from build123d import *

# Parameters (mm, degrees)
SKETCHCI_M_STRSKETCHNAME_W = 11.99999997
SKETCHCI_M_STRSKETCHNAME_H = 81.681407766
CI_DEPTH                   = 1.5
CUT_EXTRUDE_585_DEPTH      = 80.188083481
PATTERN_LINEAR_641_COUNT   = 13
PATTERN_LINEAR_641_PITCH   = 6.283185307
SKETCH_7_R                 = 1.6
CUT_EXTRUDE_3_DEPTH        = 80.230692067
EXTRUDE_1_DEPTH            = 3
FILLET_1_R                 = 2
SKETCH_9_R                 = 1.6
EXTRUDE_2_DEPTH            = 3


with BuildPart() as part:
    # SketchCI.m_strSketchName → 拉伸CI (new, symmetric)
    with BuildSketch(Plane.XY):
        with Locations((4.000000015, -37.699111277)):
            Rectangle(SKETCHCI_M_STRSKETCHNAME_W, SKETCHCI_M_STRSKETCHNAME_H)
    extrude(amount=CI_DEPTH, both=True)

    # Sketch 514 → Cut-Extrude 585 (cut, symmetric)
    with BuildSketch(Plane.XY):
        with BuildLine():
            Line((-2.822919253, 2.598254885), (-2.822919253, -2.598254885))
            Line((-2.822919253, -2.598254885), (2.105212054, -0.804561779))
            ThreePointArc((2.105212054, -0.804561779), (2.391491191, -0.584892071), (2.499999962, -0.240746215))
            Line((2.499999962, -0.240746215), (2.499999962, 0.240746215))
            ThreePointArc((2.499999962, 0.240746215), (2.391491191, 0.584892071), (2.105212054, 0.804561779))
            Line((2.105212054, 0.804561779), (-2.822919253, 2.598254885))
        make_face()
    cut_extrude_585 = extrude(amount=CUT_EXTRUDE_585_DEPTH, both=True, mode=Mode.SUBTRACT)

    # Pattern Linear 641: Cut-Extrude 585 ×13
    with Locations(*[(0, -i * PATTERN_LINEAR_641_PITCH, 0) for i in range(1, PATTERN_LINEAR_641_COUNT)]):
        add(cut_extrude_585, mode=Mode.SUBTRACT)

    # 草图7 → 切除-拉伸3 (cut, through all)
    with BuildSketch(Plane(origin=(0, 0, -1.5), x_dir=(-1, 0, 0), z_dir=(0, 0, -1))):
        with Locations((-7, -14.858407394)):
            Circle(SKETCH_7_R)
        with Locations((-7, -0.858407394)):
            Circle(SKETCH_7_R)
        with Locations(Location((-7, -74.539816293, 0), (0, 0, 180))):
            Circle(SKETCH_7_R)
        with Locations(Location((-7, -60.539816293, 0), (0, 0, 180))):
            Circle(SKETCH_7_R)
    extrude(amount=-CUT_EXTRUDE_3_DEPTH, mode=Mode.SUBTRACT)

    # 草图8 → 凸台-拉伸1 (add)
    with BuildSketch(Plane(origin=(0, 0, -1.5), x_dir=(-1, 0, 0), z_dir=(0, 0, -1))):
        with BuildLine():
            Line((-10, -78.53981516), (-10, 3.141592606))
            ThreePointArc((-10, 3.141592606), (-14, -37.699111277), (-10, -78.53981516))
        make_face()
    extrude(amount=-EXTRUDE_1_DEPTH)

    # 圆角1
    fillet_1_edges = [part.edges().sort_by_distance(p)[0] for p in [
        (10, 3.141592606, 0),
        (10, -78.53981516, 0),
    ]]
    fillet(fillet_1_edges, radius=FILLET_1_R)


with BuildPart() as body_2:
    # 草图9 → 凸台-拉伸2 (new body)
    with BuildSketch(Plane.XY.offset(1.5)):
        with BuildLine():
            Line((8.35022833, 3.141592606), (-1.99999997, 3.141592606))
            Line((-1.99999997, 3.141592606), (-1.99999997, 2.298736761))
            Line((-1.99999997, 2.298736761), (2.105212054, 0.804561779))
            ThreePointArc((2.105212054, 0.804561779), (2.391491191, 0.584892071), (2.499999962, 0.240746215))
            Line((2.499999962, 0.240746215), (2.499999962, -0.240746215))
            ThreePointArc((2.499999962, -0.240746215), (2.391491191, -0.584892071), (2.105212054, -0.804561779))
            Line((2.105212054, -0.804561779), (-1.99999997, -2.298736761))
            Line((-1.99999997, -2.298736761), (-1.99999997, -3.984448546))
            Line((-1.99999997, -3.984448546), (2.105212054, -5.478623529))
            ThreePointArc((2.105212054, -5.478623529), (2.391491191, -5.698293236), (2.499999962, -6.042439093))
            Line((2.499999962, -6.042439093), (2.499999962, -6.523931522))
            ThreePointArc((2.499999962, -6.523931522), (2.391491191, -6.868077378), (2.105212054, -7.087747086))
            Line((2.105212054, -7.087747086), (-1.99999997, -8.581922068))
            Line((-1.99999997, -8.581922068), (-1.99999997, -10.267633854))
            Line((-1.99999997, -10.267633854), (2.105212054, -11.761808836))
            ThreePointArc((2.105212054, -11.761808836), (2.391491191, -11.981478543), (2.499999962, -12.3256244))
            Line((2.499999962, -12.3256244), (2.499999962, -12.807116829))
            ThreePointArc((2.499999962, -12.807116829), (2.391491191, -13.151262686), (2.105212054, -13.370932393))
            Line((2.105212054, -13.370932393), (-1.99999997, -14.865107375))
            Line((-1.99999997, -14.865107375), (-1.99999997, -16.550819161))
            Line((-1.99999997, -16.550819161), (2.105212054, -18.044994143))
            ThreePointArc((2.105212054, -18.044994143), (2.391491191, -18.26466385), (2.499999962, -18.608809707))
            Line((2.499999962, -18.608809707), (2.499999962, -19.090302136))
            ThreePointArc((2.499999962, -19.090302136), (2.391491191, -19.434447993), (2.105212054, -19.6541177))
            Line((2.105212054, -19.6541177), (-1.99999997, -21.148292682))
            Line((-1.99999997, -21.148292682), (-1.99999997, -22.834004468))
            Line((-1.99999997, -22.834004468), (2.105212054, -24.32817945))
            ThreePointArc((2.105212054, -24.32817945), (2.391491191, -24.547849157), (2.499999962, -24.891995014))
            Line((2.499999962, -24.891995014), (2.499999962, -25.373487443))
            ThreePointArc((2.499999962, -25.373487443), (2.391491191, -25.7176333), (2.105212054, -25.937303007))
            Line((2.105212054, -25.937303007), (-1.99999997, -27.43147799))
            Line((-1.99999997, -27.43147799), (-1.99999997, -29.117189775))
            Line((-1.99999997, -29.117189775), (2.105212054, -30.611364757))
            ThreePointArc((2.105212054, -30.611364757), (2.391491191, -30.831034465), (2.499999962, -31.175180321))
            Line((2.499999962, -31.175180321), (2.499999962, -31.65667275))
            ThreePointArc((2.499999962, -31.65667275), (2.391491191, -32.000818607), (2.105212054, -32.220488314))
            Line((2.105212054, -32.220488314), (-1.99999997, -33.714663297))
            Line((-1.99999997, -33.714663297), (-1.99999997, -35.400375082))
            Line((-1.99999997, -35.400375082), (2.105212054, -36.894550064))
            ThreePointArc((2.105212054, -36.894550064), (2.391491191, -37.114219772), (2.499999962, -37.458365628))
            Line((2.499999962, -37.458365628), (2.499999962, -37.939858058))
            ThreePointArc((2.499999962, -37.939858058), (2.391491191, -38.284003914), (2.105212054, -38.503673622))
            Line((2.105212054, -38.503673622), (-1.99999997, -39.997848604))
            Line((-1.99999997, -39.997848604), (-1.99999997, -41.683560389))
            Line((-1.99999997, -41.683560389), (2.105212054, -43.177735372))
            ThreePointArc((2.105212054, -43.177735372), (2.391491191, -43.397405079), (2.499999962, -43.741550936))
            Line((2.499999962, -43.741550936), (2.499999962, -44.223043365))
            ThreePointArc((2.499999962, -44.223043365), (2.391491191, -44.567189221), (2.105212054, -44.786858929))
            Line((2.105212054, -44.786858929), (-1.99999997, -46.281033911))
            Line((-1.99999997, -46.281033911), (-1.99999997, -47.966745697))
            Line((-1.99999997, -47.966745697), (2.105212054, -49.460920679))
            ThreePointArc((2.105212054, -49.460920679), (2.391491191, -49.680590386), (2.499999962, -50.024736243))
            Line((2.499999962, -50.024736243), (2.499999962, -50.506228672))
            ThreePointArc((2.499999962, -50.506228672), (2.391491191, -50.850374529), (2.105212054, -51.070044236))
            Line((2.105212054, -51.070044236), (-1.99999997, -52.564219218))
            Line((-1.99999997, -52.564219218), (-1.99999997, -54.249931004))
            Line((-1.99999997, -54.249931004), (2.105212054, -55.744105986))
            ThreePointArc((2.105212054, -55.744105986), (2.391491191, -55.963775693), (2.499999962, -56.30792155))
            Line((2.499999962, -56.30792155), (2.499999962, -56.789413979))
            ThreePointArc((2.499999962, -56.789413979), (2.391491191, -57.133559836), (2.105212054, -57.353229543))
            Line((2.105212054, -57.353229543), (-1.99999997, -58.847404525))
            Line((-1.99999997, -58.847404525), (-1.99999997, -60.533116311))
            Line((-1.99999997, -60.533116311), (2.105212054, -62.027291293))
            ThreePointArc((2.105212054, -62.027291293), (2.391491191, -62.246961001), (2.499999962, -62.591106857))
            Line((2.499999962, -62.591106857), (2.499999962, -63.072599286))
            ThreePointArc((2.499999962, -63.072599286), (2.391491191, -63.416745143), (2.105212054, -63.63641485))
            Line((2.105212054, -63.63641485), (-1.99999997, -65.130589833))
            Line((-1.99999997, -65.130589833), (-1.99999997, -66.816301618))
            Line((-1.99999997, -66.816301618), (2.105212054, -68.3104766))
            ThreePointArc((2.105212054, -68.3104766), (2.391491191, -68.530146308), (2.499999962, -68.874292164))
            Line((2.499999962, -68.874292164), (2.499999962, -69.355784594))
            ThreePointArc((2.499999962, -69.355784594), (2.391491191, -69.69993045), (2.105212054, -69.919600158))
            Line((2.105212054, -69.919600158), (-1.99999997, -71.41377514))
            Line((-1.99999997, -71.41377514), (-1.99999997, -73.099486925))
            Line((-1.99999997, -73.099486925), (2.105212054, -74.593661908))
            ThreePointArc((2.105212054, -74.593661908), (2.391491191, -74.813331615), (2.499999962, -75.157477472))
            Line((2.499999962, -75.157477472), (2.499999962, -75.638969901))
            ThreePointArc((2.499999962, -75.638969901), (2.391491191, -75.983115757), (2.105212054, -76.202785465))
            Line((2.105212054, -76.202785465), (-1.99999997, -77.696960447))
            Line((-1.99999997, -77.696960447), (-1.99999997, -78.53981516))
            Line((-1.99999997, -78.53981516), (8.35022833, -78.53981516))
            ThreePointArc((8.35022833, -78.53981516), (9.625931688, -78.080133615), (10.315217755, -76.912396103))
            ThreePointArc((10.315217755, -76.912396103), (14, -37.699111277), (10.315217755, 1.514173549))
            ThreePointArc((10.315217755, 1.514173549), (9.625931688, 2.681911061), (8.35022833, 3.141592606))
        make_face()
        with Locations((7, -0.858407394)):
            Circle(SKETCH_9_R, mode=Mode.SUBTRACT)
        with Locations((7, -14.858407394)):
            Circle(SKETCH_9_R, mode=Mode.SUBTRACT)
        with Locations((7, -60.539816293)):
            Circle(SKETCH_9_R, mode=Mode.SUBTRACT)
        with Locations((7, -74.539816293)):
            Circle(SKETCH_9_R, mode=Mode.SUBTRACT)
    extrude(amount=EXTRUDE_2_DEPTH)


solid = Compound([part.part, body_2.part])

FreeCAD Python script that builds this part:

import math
import FreeCAD as App
import Part
import Sketcher

V = App.Vector
Q = App.Units.Quantity


def edges_at(feature, points):
    """Names of the edges that pass closest to the given points."""
    edges = feature.Shape.Edges
    near = lambda p: min(range(len(edges)), key=lambda i: edges[i].distToShape(Part.Vertex(*p))[0])
    return sorted({f"Edge{near(p) + 1}" for p in points})

doc = App.newDocument("Part")
params = doc.addObject("Spreadsheet::Sheet", "Params")
for row, (alias, value) in enumerate([
    ("sketch1_width", "12 mm"),
    ("pad1_length", "3 mm"),
    ("sketch2_radius", "0.6 mm"),
    ("pocket1_length", "160.376167 mm"),
    ("linearpattern_pitch", "6.283185 mm"),
    ("sketch3_diameter", "3.2 mm"),
    ("pad2_length", "3 mm"),
    ("fillet_radius", "2 mm"),
    ("sketch5_radius", "2 mm"),
    ("sketch5_diameter", "3.2 mm"),
    ("sketch5_radius2", "0.6 mm"),
    ("pad3_length", "3 mm"),
], start=1):
    params.set(f"A{row}", alias)
    params.set(f"B{row}", "=" + value)
    params.setAlias(f"B{row}", alias)

body = doc.addObject("PartDesign::Body", "Body")

# Sketch on XY plane
sketch1 = doc.addObject("Sketcher::SketchObject", "Sketch")
body.addObject(sketch1)
sketch1.AttachmentSupport = (doc.XY_Plane, [""])
sketch1.MapMode = "FlatFace"
sketch1.addGeometry([
    Part.LineSegment(V(-2, 3, 0), V(-2, -79, 0)),
    Part.LineSegment(V(-2, -79, 0), V(10, -79, 0)),
    Part.LineSegment(V(10, -79, 0), V(10, 3, 0)),
    Part.LineSegment(V(10, 3, 0), V(-2, 3, 0)),
], False)
sketch1.addConstraint([
    Sketcher.Constraint("Coincident", 0, 2, 1, 1),
    Sketcher.Constraint("Coincident", 1, 2, 2, 1),
    Sketcher.Constraint("Coincident", 2, 2, 3, 1),
    Sketcher.Constraint("Coincident", 3, 2, 0, 1),
    Sketcher.Constraint("Vertical", 0),
    Sketcher.Constraint("Horizontal", 1),
    Sketcher.Constraint("Vertical", 2),
    Sketcher.Constraint("Horizontal", 3),
    Sketcher.Constraint("DistanceX", 1, 1, 1, 2, Q("12 mm")),
    Sketcher.Constraint("DistanceX", 0, 2, -1, 1, Q("2 mm")),
    Sketcher.Constraint("DistanceY", 0, 2, 0, 1, Q("81.681408 mm")),
    Sketcher.Constraint("DistanceY", 0, 2, -1, 1, Q("78.539815 mm")),
])
sketch1.setExpression("Constraints[8]", "Params.sketch1_width")
pad1 = doc.addObject("PartDesign::Pad", "Pad")
body.addObject(pad1)
pad1.Profile = sketch1
pad1.setExpression("Length", "Params.pad1_length")
pad1.Midplane = True

# Sketch on XY plane
sketch2 = doc.addObject("Sketcher::SketchObject", "Sketch001")
body.addObject(sketch2)
sketch2.AttachmentSupport = (doc.XY_Plane, [""])
sketch2.MapMode = "FlatFace"
sketch2.addGeometry([
    Part.LineSegment(V(-2.82, 2.6, 0), V(-2.82, -2.6, 0)),  # 0
    Part.LineSegment(V(-2.82, -2.6, 0), V(2.11, -0.8, 0)),  # 1
    Part.ArcOfCircle(Part.Circle(V(1.9, -0.24, 0), V(0, 0, 1), 0.6), math.radians(-70), math.radians(0)),  # 2
    Part.LineSegment(V(2.5, -0.24, 0), V(2.5, 0.24, 0)),  # 3
    Part.ArcOfCircle(Part.Circle(V(1.9, 0.24, 0), V(0, 0, 1), 0.6), math.radians(0), math.radians(70)),  # 4
    Part.LineSegment(V(2.11, 0.8, 0), V(-2.82, 2.6, 0)),  # 5
], False)
sketch2.addConstraint([
    Sketcher.Constraint("Coincident", 0, 2, 1, 1),
    Sketcher.Constraint("Tangent", 1, 2, 2, 1),
    Sketcher.Constraint("Tangent", 2, 2, 3, 1),
    Sketcher.Constraint("Tangent", 3, 2, 4, 1),
    Sketcher.Constraint("Tangent", 4, 2, 5, 1),
    Sketcher.Constraint("Coincident", 5, 2, 0, 1),
    Sketcher.Constraint("Vertical", 0),
    Sketcher.Constraint("Vertical", 3),
    Sketcher.Constraint("Equal", 2, 4),
    Sketcher.Constraint("Symmetric", 1, 2, 4, 2, -1),
    Sketcher.Constraint("Radius", 2, Q("0.6 mm")),
    Sketcher.Constraint("Angle", 1, Q("20 deg")),
    Sketcher.Constraint("DistanceX", -1, 1, 2, 3, Q("1.9 mm")),
    Sketcher.Constraint("DistanceY", 0, 2, 4, 3, Q("2.839001 mm")),
    Sketcher.Constraint("DistanceY", 0, 2, 0, 1, Q("5.19651 mm")),
])
sketch2.setExpression("Constraints[10]", "Params.sketch2_radius")
pocket1 = doc.addObject("PartDesign::Pocket", "Pocket")
body.addObject(pocket1)
pocket1.Profile = sketch2
pocket1.setExpression("Length", "Params.pocket1_length")
pocket1.Midplane = True
doc.recompute()

linearpattern = doc.addObject("PartDesign::LinearPattern", "LinearPattern")
body.addObject(linearpattern)
linearpattern.Originals = [pocket1]
linearpattern.Direction = (doc.Y_Axis, [""])
linearpattern.Mode = "offset"
linearpattern.setExpression("Offset", "Params.linearpattern_pitch")
linearpattern.Occurrences = 13
linearpattern.Reversed = True
body.Tip = linearpattern

# Sketch on XY plane
sketch3 = doc.addObject("Sketcher::SketchObject", "Sketch002")
body.addObject(sketch3)
sketch3.AttachmentSupport = (doc.XY_Plane, [""])
sketch3.MapMode = "FlatFace"
sketch3.AttachmentOffset = App.Placement(V(0, 0, -1.5), App.Rotation())
sketch3.addGeometry([
    Part.Circle(V(7, -14.9, 0), V(0, 0, 1), 1.6),
    Part.Circle(V(7, -0.9, 0), V(0, 0, 1), 1.6),
    Part.Circle(V(7, -74.5, 0), V(0, 0, 1), 1.6),
    Part.Circle(V(7, -60.5, 0), V(0, 0, 1), 1.6),
], False)
sketch3.addConstraint([
    Sketcher.Constraint("Equal", 0, 1),
    Sketcher.Constraint("Equal", 1, 2),
    Sketcher.Constraint("Equal", 2, 3),
    Sketcher.Constraint("Vertical", 0, 3, 1, 3),
    Sketcher.Constraint("Vertical", 1, 3, 2, 3),
    Sketcher.Constraint("Vertical", 2, 3, 3, 3),
    Sketcher.Constraint("Diameter", 0, Q("3.2 mm")),
    Sketcher.Constraint("DistanceX", -1, 1, 0, 3, Q("7 mm")),
    Sketcher.Constraint("DistanceY", 0, 3, 1, 3, Q("14 mm")),
    Sketcher.Constraint("DistanceY", 2, 3, 3, 3, Q("14 mm")),
    Sketcher.Constraint("DistanceY", 2, 3, 0, 3, Q("59.681409 mm")),
    Sketcher.Constraint("DistanceY", 0, 3, -1, 1, Q("14.858407 mm")),
])
sketch3.setExpression("Constraints[6]", "Params.sketch3_diameter")
pocket2 = doc.addObject("PartDesign::Pocket", "Pocket001")
body.addObject(pocket2)
pocket2.Profile = sketch3
pocket2.Type = "ThroughAll"
pocket2.Reversed = True

# Sketch on XY plane
sketch4 = doc.addObject("Sketcher::SketchObject", "Sketch003")
body.addObject(sketch4)
sketch4.AttachmentSupport = (doc.XY_Plane, [""])
sketch4.MapMode = "FlatFace"
sketch4.AttachmentOffset = App.Placement(V(0, 0, -1.5), App.Rotation())
sketch4.addGeometry([
    Part.LineSegment(V(10, -79, 0), V(10, 3, 0)),
    Part.ArcOfCircle(Part.Circle(V(-196, -38, 0), V(0, 0, 1), 210), math.radians(-11), math.radians(11)),
], False)
sketch4.addConstraint([
    Sketcher.Constraint("Coincident", 0, 1, 1, 1),
    Sketcher.Constraint("Coincident", 1, 2, 0, 2),
    Sketcher.Constraint("Vertical", 0),
    Sketcher.Constraint("DistanceX", -1, 1, 0, 1, Q("10 mm")),
    Sketcher.Constraint("Radius", 1, Q("210.495387 mm")),
    Sketcher.Constraint("DistanceY", 0, 1, 0, 2, Q("81.681408 mm")),
    Sketcher.Constraint("DistanceY", 1, 3, -1, 1, Q("37.699111 mm")),
])
pad2 = doc.addObject("PartDesign::Pad", "Pad001")
body.addObject(pad2)
pad2.Profile = sketch4
pad2.setExpression("Length", "Params.pad2_length")
doc.recompute()

fillet = doc.addObject("PartDesign::Fillet", "Fillet")
body.addObject(fillet)
fillet.Base = (pad2, edges_at(pad2, [(10, 3.142, 0), (10, -78.54, 0)]))
fillet.setExpression("Radius", "Params.fillet_radius")
body2 = doc.addObject("PartDesign::Body", "Body001")

# Sketch on XY plane
sketch5 = doc.addObject("Sketcher::SketchObject", "Sketch004")
body2.addObject(sketch5)
sketch5.AttachmentSupport = (doc.getObject("XY_Plane001"), [""])
sketch5.MapMode = "FlatFace"
sketch5.AttachmentOffset = App.Placement(V(0, 0, 1.5), App.Rotation())
sketch5.addGeometry([
    Part.LineSegment(V(8.35, 3.14, 0), V(-2, 3.14, 0)),  # 0
    Part.LineSegment(V(-2, 3.14, 0), V(-2, 2.3, 0)),  # 1
    Part.LineSegment(V(-2, 2.3, 0), V(2.11, 0.8, 0)),  # 2
    Part.ArcOfCircle(Part.Circle(V(1.9, 0.24, 0), V(0, 0, 1), 0.6), math.radians(0), math.radians(70)),  # 3
    Part.LineSegment(V(2.5, 0.24, 0), V(2.5, -0.24, 0)),  # 4
    Part.ArcOfCircle(Part.Circle(V(1.9, -0.24, 0), V(0, 0, 1), 0.6), math.radians(-70), math.radians(0)),  # 5
    Part.LineSegment(V(2.11, -0.8, 0), V(-2, -2.3, 0)),  # 6
    Part.LineSegment(V(-2, -2.3, 0), V(-2, -3.98, 0)),  # 7
    Part.LineSegment(V(-2, -3.98, 0), V(2.11, -5.48, 0)),  # 8
    Part.ArcOfCircle(Part.Circle(V(1.9, -6.04, 0), V(0, 0, 1), 0.6), math.radians(0), math.radians(70)),  # 9
    Part.LineSegment(V(2.5, -6.04, 0), V(2.5, -6.52, 0)),  # 10
    Part.ArcOfCircle(Part.Circle(V(1.9, -6.52, 0), V(0, 0, 1), 0.6), math.radians(-70), math.radians(0)),  # 11
    Part.LineSegment(V(2.11, -7.09, 0), V(-2, -8.58, 0)),  # 12
    Part.LineSegment(V(-2, -8.58, 0), V(-2, -10.27, 0)),  # 13
    Part.LineSegment(V(-2, -10.27, 0), V(2.11, -11.76, 0)),  # 14
    Part.ArcOfCircle(Part.Circle(V(1.9, -12.33, 0), V(0, 0, 1), 0.6), math.radians(0), math.radians(70)),  # 15
    Part.LineSegment(V(2.5, -12.33, 0), V(2.5, -12.81, 0)),  # 16
    Part.ArcOfCircle(Part.Circle(V(1.9, -12.81, 0), V(0, 0, 1), 0.6), math.radians(-70), math.radians(0)),  # 17
    Part.LineSegment(V(2.11, -13.37, 0), V(-2, -14.87, 0)),  # 18
    Part.LineSegment(V(-2, -14.87, 0), V(-2, -16.55, 0)),  # 19
    Part.LineSegment(V(-2, -16.55, 0), V(2.11, -18.04, 0)),  # 20
    Part.ArcOfCircle(Part.Circle(V(1.9, -18.61, 0), V(0, 0, 1), 0.6), math.radians(0), math.radians(70)),  # 21
    Part.LineSegment(V(2.5, -18.61, 0), V(2.5, -19.09, 0)),  # 22
    Part.ArcOfCircle(Part.Circle(V(1.9, -19.09, 0), V(0, 0, 1), 0.6), math.radians(-70), math.radians(0)),  # 23
    Part.LineSegment(V(2.11, -19.65, 0), V(-2, -21.15, 0)),  # 24
    Part.LineSegment(V(-2, -21.15, 0), V(-2, -22.83, 0)),  # 25
    Part.LineSegment(V(-2, -22.83, 0), V(2.11, -24.33, 0)),  # 26
    Part.ArcOfCircle(Part.Circle(V(1.9, -24.89, 0), V(0, 0, 1), 0.6), math.radians(0), math.radians(70)),  # 27
    Part.LineSegment(V(2.5, -24.89, 0), V(2.5, -25.37, 0)),  # 28
    Part.ArcOfCircle(Part.Circle(V(1.9, -25.37, 0), V(0, 0, 1), 0.6), math.radians(-70), math.radians(0)),  # 29
    Part.LineSegment(V(2.11, -25.94, 0), V(-2, -27.43, 0)),  # 30
    Part.LineSegment(V(-2, -27.43, 0), V(-2, -29.12, 0)),  # 31
    Part.LineSegment(V(-2, -29.12, 0), V(2.11, -30.61, 0)),  # 32
    Part.ArcOfCircle(Part.Circle(V(1.9, -31.18, 0), V(0, 0, 1), 0.6), math.radians(0), math.radians(70)),  # 33
    Part.LineSegment(V(2.5, -31.18, 0), V(2.5, -31.66, 0)),  # 34
    Part.ArcOfCircle(Part.Circle(V(1.9, -31.66, 0), V(0, 0, 1), 0.6), math.radians(-70), math.radians(0)),  # 35
    Part.LineSegment(V(2.11, -32.22, 0), V(-2, -33.71, 0)),  # 36
    Part.LineSegment(V(-2, -33.71, 0), V(-2, -35.4, 0)),  # 37
    Part.LineSegment(V(-2, -35.4, 0), V(2.11, -36.89, 0)),  # 38
    Part.ArcOfCircle(Part.Circle(V(1.9, -37.46, 0), V(0, 0, 1), 0.6), math.radians(0), math.radians(70)),  # 39
    Part.LineSegment(V(2.5, -37.46, 0), V(2.5, -37.94, 0)),  # 40
    Part.ArcOfCircle(Part.Circle(V(1.9, -37.94, 0), V(0, 0, 1), 0.6), math.radians(-70), math.radians(0)),  # 41
    Part.LineSegment(V(2.11, -38.5, 0), V(-2, -40, 0)),  # 42
    Part.LineSegment(V(-2, -40, 0), V(-2, -41.68, 0)),  # 43
    Part.LineSegment(V(-2, -41.68, 0), V(2.11, -43.18, 0)),  # 44
    Part.ArcOfCircle(Part.Circle(V(1.9, -43.74, 0), V(0, 0, 1), 0.6), math.radians(0), math.radians(70)),  # 45
    Part.LineSegment(V(2.5, -43.74, 0), V(2.5, -44.22, 0)),  # 46
    Part.ArcOfCircle(Part.Circle(V(1.9, -44.22, 0), V(0, 0, 1), 0.6), math.radians(-70), math.radians(0)),  # 47
    Part.LineSegment(V(2.11, -44.79, 0), V(-2, -46.28, 0)),  # 48
    Part.LineSegment(V(-2, -46.28, 0), V(-2, -47.97, 0)),  # 49
    Part.LineSegment(V(-2, -47.97, 0), V(2.11, -49.46, 0)),  # 50
    Part.ArcOfCircle(Part.Circle(V(1.9, -50.02, 0), V(0, 0, 1), 0.6), math.radians(0), math.radians(70)),  # 51
    Part.LineSegment(V(2.5, -50.02, 0), V(2.5, -50.51, 0)),  # 52
    Part.ArcOfCircle(Part.Circle(V(1.9, -50.51, 0), V(0, 0, 1), 0.6), math.radians(-70), math.radians(0)),  # 53
    Part.LineSegment(V(2.11, -51.07, 0), V(-2, -52.56, 0)),  # 54
    Part.LineSegment(V(-2, -52.56, 0), V(-2, -54.25, 0)),  # 55
    Part.LineSegment(V(-2, -54.25, 0), V(2.11, -55.74, 0)),  # 56
    Part.ArcOfCircle(Part.Circle(V(1.9, -56.31, 0), V(0, 0, 1), 0.6), math.radians(0), math.radians(70)),  # 57
    Part.LineSegment(V(2.5, -56.31, 0), V(2.5, -56.79, 0)),  # 58
    Part.ArcOfCircle(Part.Circle(V(1.9, -56.79, 0), V(0, 0, 1), 0.6), math.radians(-70), math.radians(0)),  # 59
    Part.LineSegment(V(2.11, -57.35, 0), V(-2, -58.85, 0)),  # 60
    Part.LineSegment(V(-2, -58.85, 0), V(-2, -60.53, 0)),  # 61
    Part.LineSegment(V(-2, -60.53, 0), V(2.11, -62.03, 0)),  # 62
    Part.ArcOfCircle(Part.Circle(V(1.9, -62.59, 0), V(0, 0, 1), 0.6), math.radians(0), math.radians(70)),  # 63
    Part.LineSegment(V(2.5, -62.59, 0), V(2.5, -63.07, 0)),  # 64
    Part.ArcOfCircle(Part.Circle(V(1.9, -63.07, 0), V(0, 0, 1), 0.6), math.radians(-70), math.radians(0)),  # 65
    Part.LineSegment(V(2.11, -63.64, 0), V(-2, -65.13, 0)),  # 66
    Part.LineSegment(V(-2, -65.13, 0), V(-2, -66.82, 0)),  # 67
    Part.LineSegment(V(-2, -66.82, 0), V(2.11, -68.31, 0)),  # 68
    Part.ArcOfCircle(Part.Circle(V(1.9, -68.87, 0), V(0, 0, 1), 0.6), math.radians(0), math.radians(70)),  # 69
    Part.LineSegment(V(2.5, -68.87, 0), V(2.5, -69.36, 0)),  # 70
    Part.ArcOfCircle(Part.Circle(V(1.9, -69.36, 0), V(0, 0, 1), 0.6), math.radians(-70), math.radians(0)),  # 71
    Part.LineSegment(V(2.11, -69.92, 0), V(-2, -71.41, 0)),  # 72
    Part.LineSegment(V(-2, -71.41, 0), V(-2, -73.1, 0)),  # 73
    Part.LineSegment(V(-2, -73.1, 0), V(2.11, -74.59, 0)),  # 74
    Part.ArcOfCircle(Part.Circle(V(1.9, -75.16, 0), V(0, 0, 1), 0.6), math.radians(0), math.radians(70)),  # 75
    Part.LineSegment(V(2.5, -75.16, 0), V(2.5, -75.64, 0)),  # 76
    Part.ArcOfCircle(Part.Circle(V(1.9, -75.64, 0), V(0, 0, 1), 0.6), math.radians(-70), math.radians(0)),  # 77
    Part.LineSegment(V(2.11, -76.2, 0), V(-2, -77.7, 0)),  # 78
    Part.LineSegment(V(-2, -77.7, 0), V(-2, -78.54, 0)),  # 79
    Part.LineSegment(V(-2, -78.54, 0), V(8.35, -78.54, 0)),  # 80
    Part.ArcOfCircle(Part.Circle(V(8.35, -76.54, 0), V(0, 0, 1), 2), math.radians(-90), math.radians(-11)),  # 81
    Part.ArcOfCircle(Part.Circle(V(-196.5, -37.7, 0), V(0, 0, 1), 210.5), math.radians(-11), math.radians(11)),  # 82
    Part.ArcOfCircle(Part.Circle(V(8.35, 1.14, 0), V(0, 0, 1), 2), math.radians(11), math.radians(90)),  # 83
    Part.Circle(V(7, -74.54, 0), V(0, 0, 1), 1.6),  # 84
    Part.Circle(V(7, -60.54, 0), V(0, 0, 1), 1.6),  # 85
    Part.Circle(V(7, -14.86, 0), V(0, 0, 1), 1.6),  # 86
    Part.Circle(V(7, -0.86, 0), V(0, 0, 1), 1.6),  # 87
], False)
sketch5.addConstraint([
    Sketcher.Constraint("Coincident", 0, 2, 1, 1),
    Sketcher.Constraint("Coincident", 1, 2, 2, 1),
    Sketcher.Constraint("Tangent", 2, 2, 3, 2),
    Sketcher.Constraint("Tangent", 3, 1, 4, 1),
    Sketcher.Constraint("Tangent", 4, 2, 5, 2),
    Sketcher.Constraint("Tangent", 5, 1, 6, 1),
    Sketcher.Constraint("Coincident", 6, 2, 7, 1),
    Sketcher.Constraint("Coincident", 7, 2, 8, 1),
    Sketcher.Constraint("Tangent", 8, 2, 9, 2),
    Sketcher.Constraint("Tangent", 9, 1, 10, 1),
    Sketcher.Constraint("Tangent", 10, 2, 11, 2),
    Sketcher.Constraint("Tangent", 11, 1, 12, 1),
    Sketcher.Constraint("Coincident", 12, 2, 13, 1),
    Sketcher.Constraint("Coincident", 13, 2, 14, 1),
    Sketcher.Constraint("Tangent", 14, 2, 15, 2),
    Sketcher.Constraint("Tangent", 15, 1, 16, 1),
    Sketcher.Constraint("Tangent", 16, 2, 17, 2),
    Sketcher.Constraint("Tangent", 17, 1, 18, 1),
    Sketcher.Constraint("Coincident", 18, 2, 19, 1),
    Sketcher.Constraint("Coincident", 19, 2, 20, 1),
    Sketcher.Constraint("Tangent", 20, 2, 21, 2),
    Sketcher.Constraint("Tangent", 21, 1, 22, 1),
    Sketcher.Constraint("Tangent", 22, 2, 23, 2),
    Sketcher.Constraint("Tangent", 23, 1, 24, 1),
    Sketcher.Constraint("Coincident", 24, 2, 25, 1),
    Sketcher.Constraint("Coincident", 25, 2, 26, 1),
    Sketcher.Constraint("Tangent", 26, 2, 27, 2),
    Sketcher.Constraint("Tangent", 27, 1, 28, 1),
    Sketcher.Constraint("Tangent", 28, 2, 29, 2),
    Sketcher.Constraint("Tangent", 29, 1, 30, 1),
    Sketcher.Constraint("Coincident", 30, 2, 31, 1),
    Sketcher.Constraint("Coincident", 31, 2, 32, 1),
    Sketcher.Constraint("Tangent", 32, 2, 33, 2),
    Sketcher.Constraint("Tangent", 33, 1, 34, 1),
    Sketcher.Constraint("Tangent", 34, 2, 35, 2),
    Sketcher.Constraint("Tangent", 35, 1, 36, 1),
    Sketcher.Constraint("Coincident", 36, 2, 37, 1),
    Sketcher.Constraint("Coincident", 37, 2, 38, 1),
    Sketcher.Constraint("Tangent", 38, 2, 39, 2),
    Sketcher.Constraint("Tangent", 39, 1, 40, 1),
    Sketcher.Constraint("Tangent", 40, 2, 41, 2),
    Sketcher.Constraint("Tangent", 41, 1, 42, 1),
    Sketcher.Constraint("Coincident", 42, 2, 43, 1),
    Sketcher.Constraint("Coincident", 43, 2, 44, 1),
    Sketcher.Constraint("Tangent", 44, 2, 45, 2),
    Sketcher.Constraint("Tangent", 45, 1, 46, 1),
    Sketcher.Constraint("Tangent", 46, 2, 47, 2),
    Sketcher.Constraint("Tangent", 47, 1, 48, 1),
    Sketcher.Constraint("Coincident", 48, 2, 49, 1),
    Sketcher.Constraint("Coincident", 49, 2, 50, 1),
    Sketcher.Constraint("Tangent", 50, 2, 51, 2),
    Sketcher.Constraint("Tangent", 51, 1, 52, 1),
    Sketcher.Constraint("Tangent", 52, 2, 53, 2),
    Sketcher.Constraint("Tangent", 53, 1, 54, 1),
    Sketcher.Constraint("Coincident", 54, 2, 55, 1),
    Sketcher.Constraint("Coincident", 55, 2, 56, 1),
    Sketcher.Constraint("Tangent", 56, 2, 57, 2),
    Sketcher.Constraint("Tangent", 57, 1, 58, 1),
    Sketcher.Constraint("Tangent", 58, 2, 59, 2),
    Sketcher.Constraint("Tangent", 59, 1, 60, 1),
    Sketcher.Constraint("Coincident", 60, 2, 61, 1),
    Sketcher.Constraint("Coincident", 61, 2, 62, 1),
    Sketcher.Constraint("Tangent", 62, 2, 63, 2),
    Sketcher.Constraint("Tangent", 63, 1, 64, 1),
    Sketcher.Constraint("Tangent", 64, 2, 65, 2),
    Sketcher.Constraint("Tangent", 65, 1, 66, 1),
    Sketcher.Constraint("Coincident", 66, 2, 67, 1),
    Sketcher.Constraint("Coincident", 67, 2, 68, 1),
    Sketcher.Constraint("Tangent", 68, 2, 69, 2),
    Sketcher.Constraint("Tangent", 69, 1, 70, 1),
    Sketcher.Constraint("Tangent", 70, 2, 71, 2),
    Sketcher.Constraint("Tangent", 71, 1, 72, 1),
    Sketcher.Constraint("Coincident", 72, 2, 73, 1),
    Sketcher.Constraint("Coincident", 73, 2, 74, 1),
    Sketcher.Constraint("Tangent", 74, 2, 75, 2),
    Sketcher.Constraint("Tangent", 75, 1, 76, 1),
    Sketcher.Constraint("Tangent", 76, 2, 77, 2),
    Sketcher.Constraint("Tangent", 77, 1, 78, 1),
    Sketcher.Constraint("Coincident", 78, 2, 79, 1),
    Sketcher.Constraint("Coincident", 79, 2, 80, 1),
    Sketcher.Constraint("Tangent", 80, 2, 81, 1),
    Sketcher.Constraint("Tangent", 81, 2, 82, 1),
    Sketcher.Constraint("Tangent", 82, 2, 83, 1),
    Sketcher.Constraint("Tangent", 83, 2, 0, 1),
    Sketcher.Constraint("Horizontal", 0),
    Sketcher.Constraint("Vertical", 1),
    Sketcher.Constraint("Vertical", 4),
    Sketcher.Constraint("Vertical", 7),
    Sketcher.Constraint("Vertical", 10),
    Sketcher.Constraint("Vertical", 13),
    Sketcher.Constraint("Vertical", 16),
    Sketcher.Constraint("Vertical", 19),
    Sketcher.Constraint("Vertical", 22),
    Sketcher.Constraint("Vertical", 25),
    Sketcher.Constraint("Vertical", 28),
    Sketcher.Constraint("Vertical", 31),
    Sketcher.Constraint("Vertical", 34),
    Sketcher.Constraint("Vertical", 37),
    Sketcher.Constraint("Vertical", 40),
    Sketcher.Constraint("Vertical", 43),
    Sketcher.Constraint("Vertical", 46),
    Sketcher.Constraint("Vertical", 49),
    Sketcher.Constraint("Vertical", 52),
    Sketcher.Constraint("Vertical", 55),
    Sketcher.Constraint("Vertical", 58),
    Sketcher.Constraint("Vertical", 61),
    Sketcher.Constraint("Vertical", 64),
    Sketcher.Constraint("Vertical", 67),
    Sketcher.Constraint("Vertical", 70),
    Sketcher.Constraint("Vertical", 73),
    Sketcher.Constraint("Vertical", 76),
    Sketcher.Constraint("Vertical", 79),
    Sketcher.Constraint("Horizontal", 80),
    Sketcher.Constraint("Equal", 3, 5),
    Sketcher.Constraint("Equal", 5, 9),
    Sketcher.Constraint("Equal", 9, 11),
    Sketcher.Constraint("Equal", 11, 15),
    Sketcher.Constraint("Equal", 15, 17),
    Sketcher.Constraint("Equal", 17, 21),
    Sketcher.Constraint("Equal", 21, 23),
    Sketcher.Constraint("Equal", 23, 27),
    Sketcher.Constraint("Equal", 27, 29),
    Sketcher.Constraint("Equal", 29, 33),
    Sketcher.Constraint("Equal", 33, 35),
    Sketcher.Constraint("Equal", 35, 39),
    Sketcher.Constraint("Equal", 39, 41),
    Sketcher.Constraint("Equal", 41, 45),
    Sketcher.Constraint("Equal", 45, 47),
    Sketcher.Constraint("Equal", 47, 51),
    Sketcher.Constraint("Equal", 51, 53),
    Sketcher.Constraint("Equal", 53, 57),
    Sketcher.Constraint("Equal", 57, 59),
    Sketcher.Constraint("Equal", 59, 63),
    Sketcher.Constraint("Equal", 63, 65),
    Sketcher.Constraint("Equal", 65, 69),
    Sketcher.Constraint("Equal", 69, 71),
    Sketcher.Constraint("Equal", 71, 75),
    Sketcher.Constraint("Equal", 75, 77),
    Sketcher.Constraint("Equal", 81, 83),
    Sketcher.Constraint("Equal", 84, 85),
    Sketcher.Constraint("Equal", 85, 86),
    Sketcher.Constraint("Equal", 86, 87),
    Sketcher.Constraint("Symmetric", 2, 2, 5, 1, -1),
    Sketcher.Constraint("Parallel", 2, 8),
    Sketcher.Constraint("Parallel", 6, 12),
    Sketcher.Constraint("Parallel", 8, 14),
    Sketcher.Constraint("Parallel", 12, 18),
    Sketcher.Constraint("Parallel", 14, 20),
    Sketcher.Constraint("Parallel", 18, 24),
    Sketcher.Constraint("Parallel", 20, 26),
    Sketcher.Constraint("Parallel", 24, 30),
    Sketcher.Constraint("Parallel", 26, 32),
    Sketcher.Constraint("Parallel", 30, 36),
    Sketcher.Constraint("Parallel", 32, 38),
    Sketcher.Constraint("Parallel", 36, 42),
    Sketcher.Constraint("Parallel", 38, 44),
    Sketcher.Constraint("Parallel", 42, 48),
    Sketcher.Constraint("Parallel", 44, 50),
    Sketcher.Constraint("Parallel", 48, 54),
    Sketcher.Constraint("Parallel", 50, 56),
    Sketcher.Constraint("Parallel", 54, 60),
    Sketcher.Constraint("Parallel", 56, 62),
    Sketcher.Constraint("Parallel", 60, 66),
    Sketcher.Constraint("Parallel", 62, 68),
    Sketcher.Constraint("Parallel", 66, 72),
    Sketcher.Constraint("Parallel", 68, 74),
    Sketcher.Constraint("Parallel", 72, 78),
    Sketcher.Constraint("Vertical", 5, 3, 9, 3),
    Sketcher.Constraint("Vertical", 11, 3, 15, 3),
    Sketcher.Constraint("Vertical", 17, 3, 21, 3),
    Sketcher.Constraint("Vertical", 23, 3, 27, 3),
    Sketcher.Constraint("Vertical", 29, 3, 33, 3),
    Sketcher.Constraint("Vertical", 35, 3, 39, 3),
    Sketcher.Constraint("Vertical", 41, 3, 45, 3),
    Sketcher.Constraint("Vertical", 47, 3, 51, 3),
    Sketcher.Constraint("Vertical", 53, 3, 57, 3),
    Sketcher.Constraint("Vertical", 59, 3, 63, 3),
    Sketcher.Constraint("Vertical", 65, 3, 69, 3),
    Sketcher.Constraint("Vertical", 71, 3, 75, 3),
    Sketcher.Constraint("Vertical", 81, 3, 83, 3),
    Sketcher.Constraint("Vertical", 84, 3, 85, 3),
    Sketcher.Constraint("Vertical", 85, 3, 86, 3),
    Sketcher.Constraint("Vertical", 86, 3, 87, 3),
    Sketcher.Constraint("Vertical", 1, 2, 6, 2),
    Sketcher.Constraint("Vertical", 7, 2, 12, 2),
    Sketcher.Constraint("Vertical", 13, 2, 18, 2),
    Sketcher.Constraint("Vertical", 19, 2, 24, 2),
    Sketcher.Constraint("Vertical", 25, 2, 30, 2),
    Sketcher.Constraint("Vertical", 31, 2, 36, 2),
    Sketcher.Constraint("Vertical", 37, 2, 42, 2),
    Sketcher.Constraint("Vertical", 43, 2, 48, 2),
    Sketcher.Constraint("Vertical", 49, 2, 54, 2),
    Sketcher.Constraint("Vertical", 55, 2, 60, 2),
    Sketcher.Constraint("Vertical", 61, 2, 66, 2),
    Sketcher.Constraint("Vertical", 67, 2, 72, 2),
    Sketcher.Constraint("Vertical", 73, 2, 78, 2),
    Sketcher.Constraint("Equal", 4, 10),
    Sketcher.Constraint("Equal", 7, 13),
    Sketcher.Constraint("Equal", 10, 16),
    Sketcher.Constraint("Equal", 13, 19),
    Sketcher.Constraint("Equal", 16, 22),
    Sketcher.Constraint("Equal", 19, 25),
    Sketcher.Constraint("Equal", 22, 28),
    Sketcher.Constraint("Equal", 25, 31),
    Sketcher.Constraint("Equal", 28, 34),
    Sketcher.Constraint("Equal", 31, 37),
    Sketcher.Constraint("Equal", 34, 40),
    Sketcher.Constraint("Equal", 37, 43),
    Sketcher.Constraint("Equal", 40, 46),
    Sketcher.Constraint("Equal", 43, 49),
    Sketcher.Constraint("Equal", 46, 52),
    Sketcher.Constraint("Equal", 49, 55),
    Sketcher.Constraint("Equal", 52, 58),
    Sketcher.Constraint("Equal", 55, 61),
    Sketcher.Constraint("Equal", 58, 64),
    Sketcher.Constraint("Equal", 61, 67),
    Sketcher.Constraint("Equal", 64, 70),
    Sketcher.Constraint("Equal", 67, 73),
    Sketcher.Constraint("Equal", 70, 76),
    Sketcher.Constraint("Equal", 1, 79),
    Sketcher.Constraint("Radius", 81, Q("2 mm")),
    Sketcher.Constraint("Diameter", 84, Q("3.2 mm")),
    Sketcher.Constraint("Radius", 3, Q("0.6 mm")),
    Sketcher.Constraint("Angle", 2, Q("-20 deg")),
    Sketcher.Constraint("DistanceX", -1, 1, 84, 3, Q("7 mm")),
    Sketcher.Constraint("DistanceX", 0, 2, -1, 1, Q("2 mm")),
    Sketcher.Constraint("DistanceX", -1, 1, 3, 3, Q("1.9 mm")),
    Sketcher.Constraint("Radius", 82, Q("210.495387 mm")),
    Sketcher.Constraint("DistanceX", 0, 2, 0, 1, Q("10.350228 mm")),
    Sketcher.Constraint("DistanceY", 7, 2, 7, 1, Q("1.685712 mm")),
    Sketcher.Constraint("DistanceY", 65, 3, -1, 1, Q("63.072599 mm")),
    Sketcher.Constraint("DistanceY", 1, 2, 1, 1, Q("0.842856 mm")),
    Sketcher.Constraint("DistanceY", 84, 3, -1, 1, Q("74.539816 mm")),
    Sketcher.Constraint("DistanceY", 85, 3, -1, 1, Q("60.539816 mm")),
    Sketcher.Constraint("DistanceY", 86, 3, -1, 1, Q("14.858407 mm")),
    Sketcher.Constraint("DistanceY", 87, 3, -1, 1, Q("0.858407 mm")),
])
sketch5.setExpression("Constraints[220]", "Params.sketch5_radius")
sketch5.setExpression("Constraints[221]", "Params.sketch5_diameter")
sketch5.setExpression("Constraints[222]", "Params.sketch5_radius2")
pad3 = doc.addObject("PartDesign::Pad", "Pad002")
body2.addObject(pad3)
pad3.Profile = sketch5
pad3.setExpression("Length", "Params.pad3_length")

doc.recompute()
